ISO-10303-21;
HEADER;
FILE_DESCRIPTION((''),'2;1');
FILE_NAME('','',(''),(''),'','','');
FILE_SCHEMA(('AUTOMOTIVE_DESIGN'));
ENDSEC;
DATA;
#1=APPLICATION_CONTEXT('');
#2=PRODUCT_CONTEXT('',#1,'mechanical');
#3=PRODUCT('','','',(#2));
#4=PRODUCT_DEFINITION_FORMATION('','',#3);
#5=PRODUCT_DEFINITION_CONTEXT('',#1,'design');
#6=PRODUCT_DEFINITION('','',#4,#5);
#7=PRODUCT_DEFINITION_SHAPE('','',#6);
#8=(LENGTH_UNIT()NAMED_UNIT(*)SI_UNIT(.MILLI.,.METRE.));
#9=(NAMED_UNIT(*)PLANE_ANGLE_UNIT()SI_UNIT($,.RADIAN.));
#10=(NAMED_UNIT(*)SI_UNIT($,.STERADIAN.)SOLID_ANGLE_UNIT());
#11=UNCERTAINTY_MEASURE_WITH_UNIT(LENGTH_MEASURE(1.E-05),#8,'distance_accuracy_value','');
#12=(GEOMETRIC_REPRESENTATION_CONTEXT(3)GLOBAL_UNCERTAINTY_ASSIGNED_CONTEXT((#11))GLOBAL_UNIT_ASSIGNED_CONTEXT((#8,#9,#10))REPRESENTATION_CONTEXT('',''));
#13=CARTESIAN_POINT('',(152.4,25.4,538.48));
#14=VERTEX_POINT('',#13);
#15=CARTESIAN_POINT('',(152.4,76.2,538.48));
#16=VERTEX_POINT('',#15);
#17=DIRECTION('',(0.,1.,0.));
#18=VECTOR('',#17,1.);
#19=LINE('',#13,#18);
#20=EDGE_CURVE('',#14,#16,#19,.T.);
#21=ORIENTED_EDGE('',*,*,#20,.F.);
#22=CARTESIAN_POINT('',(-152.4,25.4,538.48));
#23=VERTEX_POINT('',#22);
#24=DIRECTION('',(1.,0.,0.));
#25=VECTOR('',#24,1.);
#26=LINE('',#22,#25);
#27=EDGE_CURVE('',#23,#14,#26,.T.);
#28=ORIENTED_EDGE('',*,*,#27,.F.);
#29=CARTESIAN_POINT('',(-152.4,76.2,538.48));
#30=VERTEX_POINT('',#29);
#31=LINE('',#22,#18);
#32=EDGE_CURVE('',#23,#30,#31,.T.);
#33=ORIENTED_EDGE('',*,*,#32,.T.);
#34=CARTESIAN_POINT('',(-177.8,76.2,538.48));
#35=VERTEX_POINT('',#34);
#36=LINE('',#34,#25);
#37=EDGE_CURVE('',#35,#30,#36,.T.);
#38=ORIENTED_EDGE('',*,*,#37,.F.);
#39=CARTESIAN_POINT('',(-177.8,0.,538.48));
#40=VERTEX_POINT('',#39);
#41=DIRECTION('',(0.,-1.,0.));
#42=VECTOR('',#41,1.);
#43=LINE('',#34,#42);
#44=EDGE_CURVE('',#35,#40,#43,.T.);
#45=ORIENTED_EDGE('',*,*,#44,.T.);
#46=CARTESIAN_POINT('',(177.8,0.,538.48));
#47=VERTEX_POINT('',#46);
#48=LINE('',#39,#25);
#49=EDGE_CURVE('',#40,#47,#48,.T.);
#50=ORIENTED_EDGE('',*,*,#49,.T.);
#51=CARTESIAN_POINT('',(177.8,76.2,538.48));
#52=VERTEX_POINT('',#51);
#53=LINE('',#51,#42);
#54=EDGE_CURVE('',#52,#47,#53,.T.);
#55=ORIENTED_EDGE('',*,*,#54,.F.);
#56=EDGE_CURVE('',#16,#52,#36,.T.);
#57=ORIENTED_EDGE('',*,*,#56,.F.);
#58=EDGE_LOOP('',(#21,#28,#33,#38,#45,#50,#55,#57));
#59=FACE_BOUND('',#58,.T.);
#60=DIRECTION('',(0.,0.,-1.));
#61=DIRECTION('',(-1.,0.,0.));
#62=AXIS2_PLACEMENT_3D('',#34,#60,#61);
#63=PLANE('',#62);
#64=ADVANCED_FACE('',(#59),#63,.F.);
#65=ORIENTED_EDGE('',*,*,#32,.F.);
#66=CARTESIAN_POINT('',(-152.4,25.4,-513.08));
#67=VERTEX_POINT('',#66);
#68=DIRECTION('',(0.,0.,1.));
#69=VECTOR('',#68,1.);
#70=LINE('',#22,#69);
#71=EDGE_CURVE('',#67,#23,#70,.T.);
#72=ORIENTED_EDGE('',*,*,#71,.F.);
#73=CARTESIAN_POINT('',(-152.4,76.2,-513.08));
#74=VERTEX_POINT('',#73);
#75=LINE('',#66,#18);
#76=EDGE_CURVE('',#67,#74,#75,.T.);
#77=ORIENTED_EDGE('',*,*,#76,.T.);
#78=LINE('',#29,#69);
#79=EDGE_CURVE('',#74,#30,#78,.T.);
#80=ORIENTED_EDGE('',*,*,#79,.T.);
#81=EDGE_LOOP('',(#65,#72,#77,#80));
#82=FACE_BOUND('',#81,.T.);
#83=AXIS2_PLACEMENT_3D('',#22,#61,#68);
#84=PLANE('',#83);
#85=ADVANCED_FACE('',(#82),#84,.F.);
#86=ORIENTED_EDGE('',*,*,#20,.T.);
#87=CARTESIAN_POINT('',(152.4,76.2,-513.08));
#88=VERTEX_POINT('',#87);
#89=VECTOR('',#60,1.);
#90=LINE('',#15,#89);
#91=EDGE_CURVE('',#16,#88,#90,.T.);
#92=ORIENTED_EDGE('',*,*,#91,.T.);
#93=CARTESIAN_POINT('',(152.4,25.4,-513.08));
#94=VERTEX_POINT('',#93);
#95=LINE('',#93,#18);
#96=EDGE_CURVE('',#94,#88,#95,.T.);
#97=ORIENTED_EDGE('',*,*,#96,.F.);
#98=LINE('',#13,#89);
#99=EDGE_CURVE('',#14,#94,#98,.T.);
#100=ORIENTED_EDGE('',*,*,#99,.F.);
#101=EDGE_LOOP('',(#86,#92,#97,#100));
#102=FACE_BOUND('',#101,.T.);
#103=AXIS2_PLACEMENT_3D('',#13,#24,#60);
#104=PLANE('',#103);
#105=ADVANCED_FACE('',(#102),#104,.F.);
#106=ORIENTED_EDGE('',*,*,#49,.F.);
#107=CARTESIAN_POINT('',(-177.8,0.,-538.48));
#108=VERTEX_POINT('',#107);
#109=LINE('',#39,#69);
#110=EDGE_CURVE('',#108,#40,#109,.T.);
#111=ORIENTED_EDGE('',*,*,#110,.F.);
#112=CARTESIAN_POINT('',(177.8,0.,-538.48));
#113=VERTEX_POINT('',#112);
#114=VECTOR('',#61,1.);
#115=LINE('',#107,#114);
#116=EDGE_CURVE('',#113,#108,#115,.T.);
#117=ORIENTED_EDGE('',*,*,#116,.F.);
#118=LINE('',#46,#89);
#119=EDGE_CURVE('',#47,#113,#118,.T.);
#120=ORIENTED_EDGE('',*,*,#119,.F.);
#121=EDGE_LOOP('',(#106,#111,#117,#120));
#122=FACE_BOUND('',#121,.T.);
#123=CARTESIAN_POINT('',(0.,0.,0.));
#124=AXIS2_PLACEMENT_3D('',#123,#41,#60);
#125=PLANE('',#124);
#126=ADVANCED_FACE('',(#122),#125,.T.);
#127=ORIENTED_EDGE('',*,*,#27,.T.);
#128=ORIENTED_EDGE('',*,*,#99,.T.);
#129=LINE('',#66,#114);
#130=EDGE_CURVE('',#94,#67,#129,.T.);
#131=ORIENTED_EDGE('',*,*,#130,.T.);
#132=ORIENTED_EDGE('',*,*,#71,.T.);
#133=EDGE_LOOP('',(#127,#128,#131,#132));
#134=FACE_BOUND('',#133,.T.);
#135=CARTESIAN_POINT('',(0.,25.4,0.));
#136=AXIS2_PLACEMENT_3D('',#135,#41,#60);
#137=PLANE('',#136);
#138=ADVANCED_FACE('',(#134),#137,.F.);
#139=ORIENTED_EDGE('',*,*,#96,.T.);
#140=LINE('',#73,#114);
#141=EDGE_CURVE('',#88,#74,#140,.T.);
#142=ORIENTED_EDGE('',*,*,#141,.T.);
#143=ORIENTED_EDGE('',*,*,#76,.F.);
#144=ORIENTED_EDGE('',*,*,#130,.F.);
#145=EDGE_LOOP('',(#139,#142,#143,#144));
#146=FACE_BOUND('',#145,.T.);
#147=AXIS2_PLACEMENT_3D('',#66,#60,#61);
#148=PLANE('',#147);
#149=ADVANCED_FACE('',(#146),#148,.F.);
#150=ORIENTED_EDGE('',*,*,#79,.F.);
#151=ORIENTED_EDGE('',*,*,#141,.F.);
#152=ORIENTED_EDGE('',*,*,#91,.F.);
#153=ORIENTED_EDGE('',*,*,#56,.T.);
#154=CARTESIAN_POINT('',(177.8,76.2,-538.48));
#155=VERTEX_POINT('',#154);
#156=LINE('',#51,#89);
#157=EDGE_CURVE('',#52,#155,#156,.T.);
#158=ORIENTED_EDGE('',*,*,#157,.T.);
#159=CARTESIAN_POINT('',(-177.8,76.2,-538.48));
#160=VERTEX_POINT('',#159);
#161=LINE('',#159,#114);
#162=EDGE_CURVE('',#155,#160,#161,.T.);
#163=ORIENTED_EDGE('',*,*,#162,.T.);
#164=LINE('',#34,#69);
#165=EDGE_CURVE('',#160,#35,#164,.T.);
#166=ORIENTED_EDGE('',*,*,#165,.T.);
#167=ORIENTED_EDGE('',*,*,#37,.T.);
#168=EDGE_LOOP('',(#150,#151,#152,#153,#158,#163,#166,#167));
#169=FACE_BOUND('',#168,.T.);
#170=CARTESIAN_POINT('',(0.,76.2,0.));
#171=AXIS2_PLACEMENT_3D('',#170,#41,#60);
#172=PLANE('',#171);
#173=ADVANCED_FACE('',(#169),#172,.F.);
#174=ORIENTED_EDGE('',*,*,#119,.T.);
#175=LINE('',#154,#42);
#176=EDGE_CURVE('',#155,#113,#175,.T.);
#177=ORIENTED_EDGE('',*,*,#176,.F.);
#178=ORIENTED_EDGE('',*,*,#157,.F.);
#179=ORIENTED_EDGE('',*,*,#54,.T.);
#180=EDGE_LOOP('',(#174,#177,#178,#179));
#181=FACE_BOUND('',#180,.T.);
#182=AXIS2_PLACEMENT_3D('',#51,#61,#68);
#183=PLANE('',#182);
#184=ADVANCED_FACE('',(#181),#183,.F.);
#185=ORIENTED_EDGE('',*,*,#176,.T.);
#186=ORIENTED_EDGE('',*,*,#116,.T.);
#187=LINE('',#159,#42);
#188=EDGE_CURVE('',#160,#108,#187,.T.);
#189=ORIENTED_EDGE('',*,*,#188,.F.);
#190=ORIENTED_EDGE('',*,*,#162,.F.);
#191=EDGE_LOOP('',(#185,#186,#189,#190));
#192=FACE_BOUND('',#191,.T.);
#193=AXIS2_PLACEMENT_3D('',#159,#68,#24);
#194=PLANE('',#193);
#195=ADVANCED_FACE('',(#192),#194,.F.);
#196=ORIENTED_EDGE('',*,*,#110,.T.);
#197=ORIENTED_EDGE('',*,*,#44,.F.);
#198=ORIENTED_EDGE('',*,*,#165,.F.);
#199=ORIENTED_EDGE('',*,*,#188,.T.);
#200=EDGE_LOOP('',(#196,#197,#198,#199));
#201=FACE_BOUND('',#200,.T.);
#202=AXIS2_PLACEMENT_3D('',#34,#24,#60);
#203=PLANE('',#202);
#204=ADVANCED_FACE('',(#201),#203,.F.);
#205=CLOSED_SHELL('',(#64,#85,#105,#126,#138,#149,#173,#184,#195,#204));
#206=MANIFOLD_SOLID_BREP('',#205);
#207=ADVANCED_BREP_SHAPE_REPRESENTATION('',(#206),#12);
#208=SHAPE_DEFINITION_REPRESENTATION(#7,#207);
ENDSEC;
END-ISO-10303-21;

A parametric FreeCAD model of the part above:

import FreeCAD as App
import Part
import Sketcher

V = App.Vector
Q = App.Units.Quantity


def add_polygon(sketch, points):
    """Adds a closed chain of lines whose ends are joined by coincident constraints."""
    first, n = sketch.GeometryCount, len(points)
    for a, b in zip(points, points[1:] + points[:1]):
        sketch.addGeometry(Part.LineSegment(App.Vector(*a, 0), App.Vector(*b, 0)), False)
    for i in range(n):
        sketch.addConstraint(Sketcher.Constraint("Coincident", first + i, 2, first + (i + 1) % n, 1))

doc = App.newDocument("Part")
params = doc.addObject("Spreadsheet::Sheet", "Params")
for row, (alias, value) in enumerate([
    ("sketch1_width", "14 in"),
    ("sketch1_height", "42.4 in"),
    ("pad1_length", "3 in"),
    ("sketch2_width", "12 in"),
    ("sketch2_height", "41.4 in"),
    ("pocket1_length", "2 in"),
], start=1):
    params.set(f"A{row}", alias)
    params.set(f"B{row}", "=" + value)
    params.setAlias(f"B{row}", alias)

body = doc.addObject("PartDesign::Body", "Body")

# Sketch on XZ plane
sketch1 = body.newObject("Sketcher::SketchObject", "Sketch")
sketch1.AttachmentSupport = (doc.getObject("XZ_Plane"), [""])
sketch1.MapMode = "FlatFace"
add_polygon(sketch1, [(-178, -538), (-178, 538), (178, 538), (178, -538)])  # lines 0-3
sketch1.addConstraint([
    Sketcher.Constraint("Vertical", 0),
    Sketcher.Constraint("Horizontal", 1),
    Sketcher.Constraint("Vertical", 2),
    Sketcher.Constraint("Horizontal", 3),
    Sketcher.Constraint("Symmetric", 0, 2, 2, 2, -1, 1),
    Sketcher.Constraint("DistanceX", 1, 1, 1, 2, Q("14 in")),
    Sketcher.Constraint("DistanceY", 0, 1, 0, 2, Q("42.4 in")),
])
sketch1.setExpression("Constraints[9]", "Params.sketch1_width")
sketch1.setExpression("Constraints[10]", "Params.sketch1_height")
pad1 = body.newObject("PartDesign::Pad", "Pad")
pad1.Profile = sketch1
pad1.setExpression("Length", "Params.pad1_length")
pad1.Reversed = True

# Sketch on XZ plane
sketch2 = body.newObject("Sketcher::SketchObject", "Sketch001")
sketch2.AttachmentSupport = (doc.getObject("XZ_Plane"), [""])
sketch2.MapMode = "FlatFace"
sketch2.AttachmentOffset = App.Placement(V(0, 0, -3 * 25.4), App.Rotation())
add_polygon(sketch2, [(-152, -513), (-152, 538), (152, 538), (152, -513)])  # lines 0-3
sketch2.addConstraint([
    Sketcher.Constraint("Vertical", 0),
    Sketcher.Constraint("Horizontal", 1),
    Sketcher.Constraint("Vertical", 2),
    Sketcher.Constraint("Horizontal", 3),
    Sketcher.Constraint("DistanceX", 1, 1, 1, 2, Q("12 in")),
    Sketcher.Constraint("DistanceY", 0, 1, 0, 2, Q("41.4 in")),
    Sketcher.Constraint("DistanceX", 0, 2, -1, 1, Q("6 in")),
    Sketcher.Constraint("DistanceY", -1, 1, 0, 2, Q("21.2 in")),
])
sketch2.setExpression("Constraints[8]", "Params.sketch2_width")
sketch2.setExpression("Constraints[9]", "Params.sketch2_height")
pocket1 = body.newObject("PartDesign::Pocket", "Pocket")
pocket1.Profile = sketch2
pocket1.setExpression("Length", "Params.pocket1_length")
pocket1.Reversed = True

doc.recompute()
